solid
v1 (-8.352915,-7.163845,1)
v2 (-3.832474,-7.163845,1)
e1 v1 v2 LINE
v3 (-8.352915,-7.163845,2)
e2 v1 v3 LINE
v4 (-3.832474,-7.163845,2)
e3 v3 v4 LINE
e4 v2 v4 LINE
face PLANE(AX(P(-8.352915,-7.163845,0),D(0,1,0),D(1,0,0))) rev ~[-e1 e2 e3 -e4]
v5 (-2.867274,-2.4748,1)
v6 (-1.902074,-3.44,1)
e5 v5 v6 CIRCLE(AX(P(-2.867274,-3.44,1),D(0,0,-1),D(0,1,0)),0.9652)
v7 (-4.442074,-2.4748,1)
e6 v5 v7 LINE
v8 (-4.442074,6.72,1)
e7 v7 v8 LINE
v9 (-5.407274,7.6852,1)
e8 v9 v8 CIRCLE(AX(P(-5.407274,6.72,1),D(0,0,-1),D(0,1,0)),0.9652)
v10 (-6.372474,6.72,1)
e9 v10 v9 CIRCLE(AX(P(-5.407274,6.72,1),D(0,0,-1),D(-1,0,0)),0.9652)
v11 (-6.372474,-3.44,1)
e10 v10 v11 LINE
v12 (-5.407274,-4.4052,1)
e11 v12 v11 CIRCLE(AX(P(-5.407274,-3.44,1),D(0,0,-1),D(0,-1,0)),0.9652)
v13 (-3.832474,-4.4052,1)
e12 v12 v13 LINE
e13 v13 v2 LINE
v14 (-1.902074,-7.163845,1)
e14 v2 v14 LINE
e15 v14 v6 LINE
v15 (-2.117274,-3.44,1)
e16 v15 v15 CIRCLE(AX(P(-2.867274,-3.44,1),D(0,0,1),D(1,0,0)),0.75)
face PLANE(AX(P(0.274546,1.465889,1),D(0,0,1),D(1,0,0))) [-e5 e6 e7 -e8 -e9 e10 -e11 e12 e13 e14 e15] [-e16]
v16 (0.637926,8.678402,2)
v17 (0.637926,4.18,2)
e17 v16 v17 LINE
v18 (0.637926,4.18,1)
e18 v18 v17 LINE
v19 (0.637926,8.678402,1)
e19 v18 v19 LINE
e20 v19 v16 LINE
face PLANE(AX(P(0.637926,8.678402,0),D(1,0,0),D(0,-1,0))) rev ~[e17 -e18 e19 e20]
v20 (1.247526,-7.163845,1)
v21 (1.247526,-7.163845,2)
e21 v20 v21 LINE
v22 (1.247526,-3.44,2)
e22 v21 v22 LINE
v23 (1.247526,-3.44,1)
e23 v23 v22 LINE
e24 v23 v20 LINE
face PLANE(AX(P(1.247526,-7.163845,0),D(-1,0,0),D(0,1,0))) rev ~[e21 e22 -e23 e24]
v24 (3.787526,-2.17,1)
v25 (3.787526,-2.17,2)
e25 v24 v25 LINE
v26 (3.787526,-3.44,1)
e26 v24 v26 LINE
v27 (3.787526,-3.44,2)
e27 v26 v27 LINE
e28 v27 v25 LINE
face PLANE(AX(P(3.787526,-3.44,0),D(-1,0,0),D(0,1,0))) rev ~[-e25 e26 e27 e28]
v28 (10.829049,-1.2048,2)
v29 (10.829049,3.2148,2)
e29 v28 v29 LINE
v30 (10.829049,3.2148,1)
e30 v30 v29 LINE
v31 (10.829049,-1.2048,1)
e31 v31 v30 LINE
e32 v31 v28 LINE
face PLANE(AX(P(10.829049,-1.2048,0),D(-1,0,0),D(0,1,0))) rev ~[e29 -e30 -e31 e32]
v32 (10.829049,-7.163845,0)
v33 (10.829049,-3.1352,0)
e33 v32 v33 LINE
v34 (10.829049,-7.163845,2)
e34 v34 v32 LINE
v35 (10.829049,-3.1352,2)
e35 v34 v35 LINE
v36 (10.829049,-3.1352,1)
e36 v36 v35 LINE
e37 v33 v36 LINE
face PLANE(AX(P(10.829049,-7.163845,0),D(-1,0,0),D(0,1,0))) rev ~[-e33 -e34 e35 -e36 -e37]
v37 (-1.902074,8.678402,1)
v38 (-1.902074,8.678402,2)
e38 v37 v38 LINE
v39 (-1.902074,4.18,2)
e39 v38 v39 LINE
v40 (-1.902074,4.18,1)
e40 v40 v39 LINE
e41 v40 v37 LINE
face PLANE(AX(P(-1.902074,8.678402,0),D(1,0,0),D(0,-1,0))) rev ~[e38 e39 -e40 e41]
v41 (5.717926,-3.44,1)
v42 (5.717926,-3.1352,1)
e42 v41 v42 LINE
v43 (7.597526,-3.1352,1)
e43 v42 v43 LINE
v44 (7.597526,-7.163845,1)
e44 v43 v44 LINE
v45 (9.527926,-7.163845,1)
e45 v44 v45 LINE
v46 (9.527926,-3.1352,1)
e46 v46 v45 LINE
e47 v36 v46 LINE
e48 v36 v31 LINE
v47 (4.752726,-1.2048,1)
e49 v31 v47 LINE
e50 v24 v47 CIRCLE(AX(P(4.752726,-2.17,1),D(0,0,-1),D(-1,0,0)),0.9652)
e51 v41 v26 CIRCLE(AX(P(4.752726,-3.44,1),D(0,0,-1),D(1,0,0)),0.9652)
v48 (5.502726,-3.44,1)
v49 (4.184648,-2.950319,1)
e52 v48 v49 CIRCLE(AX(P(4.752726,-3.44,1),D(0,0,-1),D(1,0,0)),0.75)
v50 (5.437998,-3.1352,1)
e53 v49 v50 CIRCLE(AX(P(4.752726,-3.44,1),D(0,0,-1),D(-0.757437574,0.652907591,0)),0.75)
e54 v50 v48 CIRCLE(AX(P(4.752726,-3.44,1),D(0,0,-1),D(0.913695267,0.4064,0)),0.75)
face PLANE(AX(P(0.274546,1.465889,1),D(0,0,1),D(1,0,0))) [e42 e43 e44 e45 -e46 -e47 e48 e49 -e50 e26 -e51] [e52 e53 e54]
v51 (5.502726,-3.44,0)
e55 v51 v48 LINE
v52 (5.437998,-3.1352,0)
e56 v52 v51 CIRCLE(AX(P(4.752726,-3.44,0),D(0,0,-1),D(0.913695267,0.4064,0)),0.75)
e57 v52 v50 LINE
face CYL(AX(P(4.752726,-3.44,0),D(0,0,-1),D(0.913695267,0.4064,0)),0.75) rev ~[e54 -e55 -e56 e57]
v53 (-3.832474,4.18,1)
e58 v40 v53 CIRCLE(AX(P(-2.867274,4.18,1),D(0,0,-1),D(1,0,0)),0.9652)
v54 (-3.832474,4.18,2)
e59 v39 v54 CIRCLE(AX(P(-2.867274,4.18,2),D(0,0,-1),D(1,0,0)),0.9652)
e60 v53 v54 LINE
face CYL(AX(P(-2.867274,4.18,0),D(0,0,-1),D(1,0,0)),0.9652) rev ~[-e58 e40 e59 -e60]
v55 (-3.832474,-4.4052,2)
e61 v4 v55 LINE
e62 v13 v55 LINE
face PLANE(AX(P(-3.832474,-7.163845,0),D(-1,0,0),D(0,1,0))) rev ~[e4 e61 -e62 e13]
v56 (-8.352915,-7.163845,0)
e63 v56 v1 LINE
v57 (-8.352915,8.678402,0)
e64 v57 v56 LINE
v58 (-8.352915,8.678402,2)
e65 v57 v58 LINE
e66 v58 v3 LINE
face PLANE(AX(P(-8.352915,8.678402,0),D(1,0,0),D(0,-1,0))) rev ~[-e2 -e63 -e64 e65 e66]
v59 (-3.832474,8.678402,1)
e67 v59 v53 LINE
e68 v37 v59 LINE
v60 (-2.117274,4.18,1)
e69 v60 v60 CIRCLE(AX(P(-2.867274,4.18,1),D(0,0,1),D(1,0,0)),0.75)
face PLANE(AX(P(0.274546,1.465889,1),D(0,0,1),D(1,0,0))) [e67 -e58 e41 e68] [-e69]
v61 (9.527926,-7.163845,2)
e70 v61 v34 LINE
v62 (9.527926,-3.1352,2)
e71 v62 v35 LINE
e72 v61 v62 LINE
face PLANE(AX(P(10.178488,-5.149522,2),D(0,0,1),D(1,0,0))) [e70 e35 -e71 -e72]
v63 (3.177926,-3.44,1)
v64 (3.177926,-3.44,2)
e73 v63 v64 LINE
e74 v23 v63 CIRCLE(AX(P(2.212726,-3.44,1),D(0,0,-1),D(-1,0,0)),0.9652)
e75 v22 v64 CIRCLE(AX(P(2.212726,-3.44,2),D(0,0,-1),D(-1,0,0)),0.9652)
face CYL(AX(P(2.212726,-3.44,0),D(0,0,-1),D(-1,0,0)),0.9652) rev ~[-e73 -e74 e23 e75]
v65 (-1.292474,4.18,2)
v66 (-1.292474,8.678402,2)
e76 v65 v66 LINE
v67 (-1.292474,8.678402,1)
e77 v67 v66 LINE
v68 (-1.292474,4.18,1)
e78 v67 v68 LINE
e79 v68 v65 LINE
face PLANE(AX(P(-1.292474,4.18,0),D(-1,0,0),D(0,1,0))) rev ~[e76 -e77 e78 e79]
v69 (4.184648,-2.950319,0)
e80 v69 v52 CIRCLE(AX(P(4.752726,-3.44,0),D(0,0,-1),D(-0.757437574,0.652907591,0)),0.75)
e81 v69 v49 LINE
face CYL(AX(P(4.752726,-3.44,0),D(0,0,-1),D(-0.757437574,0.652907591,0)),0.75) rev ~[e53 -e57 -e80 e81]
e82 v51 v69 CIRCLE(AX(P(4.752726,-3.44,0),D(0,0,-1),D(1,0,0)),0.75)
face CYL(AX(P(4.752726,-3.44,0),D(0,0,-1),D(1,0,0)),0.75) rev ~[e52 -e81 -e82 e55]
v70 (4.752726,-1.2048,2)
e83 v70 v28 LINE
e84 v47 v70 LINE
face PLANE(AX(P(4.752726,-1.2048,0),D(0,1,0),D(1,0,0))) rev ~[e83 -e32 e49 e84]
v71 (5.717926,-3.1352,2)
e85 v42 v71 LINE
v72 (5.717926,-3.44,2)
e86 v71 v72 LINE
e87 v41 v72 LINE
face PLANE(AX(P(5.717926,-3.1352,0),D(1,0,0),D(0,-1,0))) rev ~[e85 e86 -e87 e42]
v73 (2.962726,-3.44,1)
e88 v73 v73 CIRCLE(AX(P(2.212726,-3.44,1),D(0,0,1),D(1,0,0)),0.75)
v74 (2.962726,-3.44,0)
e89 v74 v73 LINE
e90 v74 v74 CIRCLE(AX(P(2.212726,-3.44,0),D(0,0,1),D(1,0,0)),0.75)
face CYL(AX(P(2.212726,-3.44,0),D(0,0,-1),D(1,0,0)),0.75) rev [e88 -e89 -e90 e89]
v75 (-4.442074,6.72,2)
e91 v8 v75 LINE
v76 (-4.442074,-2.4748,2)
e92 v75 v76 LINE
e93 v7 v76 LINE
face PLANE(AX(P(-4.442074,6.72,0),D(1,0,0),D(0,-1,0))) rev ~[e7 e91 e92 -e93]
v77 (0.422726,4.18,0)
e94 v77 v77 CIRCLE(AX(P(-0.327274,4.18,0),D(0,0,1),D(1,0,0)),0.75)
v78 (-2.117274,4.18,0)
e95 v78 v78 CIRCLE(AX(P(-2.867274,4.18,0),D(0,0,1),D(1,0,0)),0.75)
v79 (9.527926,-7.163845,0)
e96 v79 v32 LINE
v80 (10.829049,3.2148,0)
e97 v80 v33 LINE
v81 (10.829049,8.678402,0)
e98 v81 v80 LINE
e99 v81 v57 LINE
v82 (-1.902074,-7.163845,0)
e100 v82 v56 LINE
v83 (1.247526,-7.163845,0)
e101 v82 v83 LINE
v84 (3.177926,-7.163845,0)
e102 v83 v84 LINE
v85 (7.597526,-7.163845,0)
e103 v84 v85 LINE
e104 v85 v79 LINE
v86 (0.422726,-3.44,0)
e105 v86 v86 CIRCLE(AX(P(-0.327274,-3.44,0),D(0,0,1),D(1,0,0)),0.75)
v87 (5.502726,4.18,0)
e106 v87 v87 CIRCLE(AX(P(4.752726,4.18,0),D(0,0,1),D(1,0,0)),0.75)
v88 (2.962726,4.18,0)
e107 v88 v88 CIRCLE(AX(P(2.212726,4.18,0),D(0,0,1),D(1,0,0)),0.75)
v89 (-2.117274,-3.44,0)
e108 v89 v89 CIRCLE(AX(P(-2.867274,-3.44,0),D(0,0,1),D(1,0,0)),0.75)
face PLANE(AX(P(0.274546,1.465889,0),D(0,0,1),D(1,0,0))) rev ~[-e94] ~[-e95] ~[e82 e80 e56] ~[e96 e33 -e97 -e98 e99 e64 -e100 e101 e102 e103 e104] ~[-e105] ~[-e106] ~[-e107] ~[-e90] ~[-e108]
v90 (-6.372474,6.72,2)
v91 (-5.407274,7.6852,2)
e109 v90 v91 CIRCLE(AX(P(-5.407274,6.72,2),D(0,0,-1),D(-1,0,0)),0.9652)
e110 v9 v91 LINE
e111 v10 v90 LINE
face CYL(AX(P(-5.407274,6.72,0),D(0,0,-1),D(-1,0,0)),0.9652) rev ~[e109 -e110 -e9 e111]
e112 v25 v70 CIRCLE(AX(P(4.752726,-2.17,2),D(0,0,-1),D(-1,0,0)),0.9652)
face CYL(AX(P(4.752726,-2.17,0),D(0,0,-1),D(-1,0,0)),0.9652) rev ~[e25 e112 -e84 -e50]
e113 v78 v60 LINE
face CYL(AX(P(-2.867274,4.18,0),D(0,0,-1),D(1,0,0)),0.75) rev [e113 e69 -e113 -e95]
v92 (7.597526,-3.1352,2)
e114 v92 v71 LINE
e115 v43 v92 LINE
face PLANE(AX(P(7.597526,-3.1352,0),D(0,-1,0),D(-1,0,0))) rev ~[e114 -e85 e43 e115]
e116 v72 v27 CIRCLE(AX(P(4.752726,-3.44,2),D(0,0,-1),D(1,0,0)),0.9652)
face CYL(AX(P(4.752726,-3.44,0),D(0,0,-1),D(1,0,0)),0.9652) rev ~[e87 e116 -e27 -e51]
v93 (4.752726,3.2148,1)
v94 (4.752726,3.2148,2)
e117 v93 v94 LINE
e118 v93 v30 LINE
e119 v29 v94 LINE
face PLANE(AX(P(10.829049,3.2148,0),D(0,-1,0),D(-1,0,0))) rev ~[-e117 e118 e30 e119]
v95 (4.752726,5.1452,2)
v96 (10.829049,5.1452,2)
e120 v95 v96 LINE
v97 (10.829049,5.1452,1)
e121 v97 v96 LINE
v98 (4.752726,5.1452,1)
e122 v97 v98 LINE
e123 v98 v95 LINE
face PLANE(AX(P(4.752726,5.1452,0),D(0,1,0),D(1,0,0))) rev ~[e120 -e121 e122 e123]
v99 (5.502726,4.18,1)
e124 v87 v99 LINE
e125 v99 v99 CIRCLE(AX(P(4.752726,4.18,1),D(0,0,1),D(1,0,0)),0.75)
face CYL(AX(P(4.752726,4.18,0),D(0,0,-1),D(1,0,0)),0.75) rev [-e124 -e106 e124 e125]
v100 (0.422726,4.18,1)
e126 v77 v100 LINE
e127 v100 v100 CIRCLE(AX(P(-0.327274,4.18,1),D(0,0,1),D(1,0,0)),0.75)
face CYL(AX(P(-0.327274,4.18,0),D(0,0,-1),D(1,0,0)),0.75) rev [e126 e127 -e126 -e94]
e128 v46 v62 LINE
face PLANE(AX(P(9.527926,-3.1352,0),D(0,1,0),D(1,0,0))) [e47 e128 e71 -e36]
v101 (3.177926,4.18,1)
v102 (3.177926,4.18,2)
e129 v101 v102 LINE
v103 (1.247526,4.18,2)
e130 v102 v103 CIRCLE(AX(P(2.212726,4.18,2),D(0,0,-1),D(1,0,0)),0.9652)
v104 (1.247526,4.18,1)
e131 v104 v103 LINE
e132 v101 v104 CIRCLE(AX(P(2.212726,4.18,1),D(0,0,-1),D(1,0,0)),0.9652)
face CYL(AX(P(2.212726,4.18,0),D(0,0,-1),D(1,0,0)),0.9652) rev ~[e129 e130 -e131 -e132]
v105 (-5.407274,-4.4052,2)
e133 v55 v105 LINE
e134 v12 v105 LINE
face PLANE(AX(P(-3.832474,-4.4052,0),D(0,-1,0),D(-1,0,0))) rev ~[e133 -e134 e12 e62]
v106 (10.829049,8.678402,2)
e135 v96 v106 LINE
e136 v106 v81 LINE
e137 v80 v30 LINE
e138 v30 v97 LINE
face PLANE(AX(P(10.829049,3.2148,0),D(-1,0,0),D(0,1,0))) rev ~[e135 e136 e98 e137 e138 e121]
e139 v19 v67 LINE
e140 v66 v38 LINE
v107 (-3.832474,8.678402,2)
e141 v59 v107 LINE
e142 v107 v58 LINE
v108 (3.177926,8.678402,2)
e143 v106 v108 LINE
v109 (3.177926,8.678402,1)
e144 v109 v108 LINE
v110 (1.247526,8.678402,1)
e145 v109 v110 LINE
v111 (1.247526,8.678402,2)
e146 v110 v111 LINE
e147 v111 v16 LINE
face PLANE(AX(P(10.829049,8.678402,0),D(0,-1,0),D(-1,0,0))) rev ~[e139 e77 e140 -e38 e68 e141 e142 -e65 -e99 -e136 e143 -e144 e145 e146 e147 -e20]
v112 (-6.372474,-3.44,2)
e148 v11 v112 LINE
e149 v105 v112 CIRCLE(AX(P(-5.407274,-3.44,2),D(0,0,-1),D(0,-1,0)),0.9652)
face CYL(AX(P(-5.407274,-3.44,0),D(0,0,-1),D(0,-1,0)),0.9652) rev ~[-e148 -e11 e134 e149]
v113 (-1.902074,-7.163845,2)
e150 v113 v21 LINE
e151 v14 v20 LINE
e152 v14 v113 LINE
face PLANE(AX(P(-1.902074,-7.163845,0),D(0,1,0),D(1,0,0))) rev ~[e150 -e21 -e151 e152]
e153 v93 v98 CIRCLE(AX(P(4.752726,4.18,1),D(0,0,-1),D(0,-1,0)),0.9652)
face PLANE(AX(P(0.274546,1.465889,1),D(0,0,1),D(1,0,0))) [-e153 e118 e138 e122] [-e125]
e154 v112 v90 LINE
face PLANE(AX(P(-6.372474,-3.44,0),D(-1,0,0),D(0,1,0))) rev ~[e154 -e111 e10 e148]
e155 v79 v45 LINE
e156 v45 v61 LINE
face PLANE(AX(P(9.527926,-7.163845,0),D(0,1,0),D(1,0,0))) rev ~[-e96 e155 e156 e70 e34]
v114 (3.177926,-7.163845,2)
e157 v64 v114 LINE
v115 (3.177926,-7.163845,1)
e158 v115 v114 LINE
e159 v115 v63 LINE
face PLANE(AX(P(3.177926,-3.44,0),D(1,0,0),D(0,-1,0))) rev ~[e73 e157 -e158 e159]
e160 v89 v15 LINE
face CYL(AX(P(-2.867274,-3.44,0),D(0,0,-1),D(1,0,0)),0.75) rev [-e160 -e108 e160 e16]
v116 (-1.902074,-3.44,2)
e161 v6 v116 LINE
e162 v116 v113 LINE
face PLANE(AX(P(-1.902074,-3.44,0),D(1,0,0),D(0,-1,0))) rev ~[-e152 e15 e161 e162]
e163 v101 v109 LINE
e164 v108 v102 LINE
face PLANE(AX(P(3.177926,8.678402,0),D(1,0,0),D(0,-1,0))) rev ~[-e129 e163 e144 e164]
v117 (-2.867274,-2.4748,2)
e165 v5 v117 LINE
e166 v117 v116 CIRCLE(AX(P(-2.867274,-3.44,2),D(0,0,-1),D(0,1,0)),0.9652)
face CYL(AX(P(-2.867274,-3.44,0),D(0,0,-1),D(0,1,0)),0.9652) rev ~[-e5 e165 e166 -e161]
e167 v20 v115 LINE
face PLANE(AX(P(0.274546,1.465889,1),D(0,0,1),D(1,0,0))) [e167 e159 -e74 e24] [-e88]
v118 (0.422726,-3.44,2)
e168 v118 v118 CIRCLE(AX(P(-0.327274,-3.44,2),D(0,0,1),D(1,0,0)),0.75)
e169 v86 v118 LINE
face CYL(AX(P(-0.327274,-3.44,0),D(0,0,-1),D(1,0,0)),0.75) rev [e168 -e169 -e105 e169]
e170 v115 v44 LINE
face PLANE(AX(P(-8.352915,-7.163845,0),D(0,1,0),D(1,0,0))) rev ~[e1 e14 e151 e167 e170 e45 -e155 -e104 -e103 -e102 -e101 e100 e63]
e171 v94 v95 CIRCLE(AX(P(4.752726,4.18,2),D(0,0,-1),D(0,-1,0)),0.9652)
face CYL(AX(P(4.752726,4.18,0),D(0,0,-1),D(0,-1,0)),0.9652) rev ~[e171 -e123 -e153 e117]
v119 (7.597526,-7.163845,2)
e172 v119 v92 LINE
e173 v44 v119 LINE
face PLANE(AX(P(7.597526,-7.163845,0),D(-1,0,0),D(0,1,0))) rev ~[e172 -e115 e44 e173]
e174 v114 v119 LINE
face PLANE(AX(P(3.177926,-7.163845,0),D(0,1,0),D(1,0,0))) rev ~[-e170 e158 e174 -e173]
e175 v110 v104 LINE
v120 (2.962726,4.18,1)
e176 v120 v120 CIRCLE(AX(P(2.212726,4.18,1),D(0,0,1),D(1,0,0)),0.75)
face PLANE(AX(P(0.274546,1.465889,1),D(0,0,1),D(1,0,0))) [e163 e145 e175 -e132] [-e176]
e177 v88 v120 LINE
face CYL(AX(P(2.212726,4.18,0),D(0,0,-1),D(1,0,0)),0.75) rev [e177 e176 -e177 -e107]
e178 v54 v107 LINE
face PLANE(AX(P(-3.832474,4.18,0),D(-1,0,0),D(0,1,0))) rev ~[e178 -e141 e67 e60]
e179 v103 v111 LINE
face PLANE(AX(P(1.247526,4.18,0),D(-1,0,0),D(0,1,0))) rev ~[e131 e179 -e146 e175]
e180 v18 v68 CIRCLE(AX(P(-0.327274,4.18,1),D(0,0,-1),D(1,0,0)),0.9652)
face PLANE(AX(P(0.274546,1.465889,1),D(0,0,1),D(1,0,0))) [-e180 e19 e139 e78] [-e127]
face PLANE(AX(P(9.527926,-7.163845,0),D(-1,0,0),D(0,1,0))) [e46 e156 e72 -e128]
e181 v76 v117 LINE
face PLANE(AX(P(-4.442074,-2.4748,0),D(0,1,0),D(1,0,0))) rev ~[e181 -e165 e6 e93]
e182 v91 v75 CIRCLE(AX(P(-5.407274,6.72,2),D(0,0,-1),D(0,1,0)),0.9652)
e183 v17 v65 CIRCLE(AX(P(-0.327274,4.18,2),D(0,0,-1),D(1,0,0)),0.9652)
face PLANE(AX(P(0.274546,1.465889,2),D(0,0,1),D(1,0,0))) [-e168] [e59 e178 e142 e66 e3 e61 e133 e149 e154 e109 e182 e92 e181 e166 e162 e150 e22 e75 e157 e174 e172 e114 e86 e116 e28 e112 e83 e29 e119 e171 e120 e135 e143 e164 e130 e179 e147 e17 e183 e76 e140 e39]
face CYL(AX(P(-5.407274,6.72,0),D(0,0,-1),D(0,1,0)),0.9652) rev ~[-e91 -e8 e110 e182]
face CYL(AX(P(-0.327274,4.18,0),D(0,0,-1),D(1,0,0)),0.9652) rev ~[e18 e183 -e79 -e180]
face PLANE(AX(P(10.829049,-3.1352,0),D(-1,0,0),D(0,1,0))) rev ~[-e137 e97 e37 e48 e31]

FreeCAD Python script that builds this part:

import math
import FreeCAD as App
import Part
import Sketcher

V = App.Vector
Q = App.Units.Quantity

doc = App.newDocument("Part")
body = doc.addObject("PartDesign::Body", "Body")

# Sketch on XY plane
sketch1 = doc.addObject("Sketcher::SketchObject", "Sketch")
body.addObject(sketch1)
sketch1.AttachmentSupport = (doc.XY_Plane, [""])
sketch1.MapMode = "FlatFace"
sketch1.addGeometry(Part.LineSegment(V(10.83, 8.68, 0), V(-8.35, 8.68, 0)), False)
sketch1.addGeometry(Part.LineSegment(V(-8.35, 8.68, 0), V(-8.35, -7.16, 0)), False)
sketch1.addGeometry(Part.LineSegment(V(-8.35, -7.16, 0), V(9.53, -7.16, 0)), False)
sketch1.addGeometry(Part.LineSegment(V(9.53, -7.16, 0), V(10.83, -7.16, 0)), False)
sketch1.addGeometry(Part.LineSegment(V(10.83, -7.16, 0), V(10.83, -3.14, 0)), False)
sketch1.addGeometry(Part.LineSegment(V(10.83, -3.14, 0), V(10.83, 3.21, 0)), False)
sketch1.addGeometry(Part.LineSegment(V(10.83, 3.21, 0), V(10.83, 8.68, 0)), False)
sketch1.addGeometry(Part.Circle(V(-2.87, -3.44, 0), V(0, 0, 1), 0.75), False)
sketch1.addGeometry(Part.Circle(V(-0.33, -3.44, 0), V(0, 0, 1), 0.75), False)
sketch1.addGeometry(Part.Circle(V(2.21, -3.44, 0), V(0, 0, 1), 0.75), False)
sketch1.addGeometry(Part.ArcOfCircle(Part.Circle(V(4.75, -3.44, 0), V(0, 0, 1), 0.75), math.radians(24), math.radians(139)), False)
sketch1.addGeometry(Part.ArcOfCircle(Part.Circle(V(4.75, -3.44, 0), V(0, 0, 1), 0.75), math.radians(0), math.radians(24)), False)
sketch1.addGeometry(Part.ArcOfCircle(Part.Circle(V(4.75, -3.44, 0), V(0, 0, 1), 0.75), math.radians(139), math.radians(360)), False)
sketch1.addGeometry(Part.Circle(V(-2.87, 4.18, 0), V(0, 0, 1), 0.75), False)
sketch1.addGeometry(Part.Circle(V(-0.33, 4.18, 0), V(0, 0, 1), 0.75), False)
sketch1.addGeometry(Part.Circle(V(2.21, 4.18, 0), V(0, 0, 1), 0.75), False)
sketch1.addGeometry(Part.Circle(V(4.75, 4.18, 0), V(0, 0, 1), 0.75), False)
sketch1.addConstraint(Sketcher.Constraint("Coincident", 0, 2, 1, 1))
sketch1.addConstraint(Sketcher.Constraint("Coincident", 1, 2, 2, 1))
sketch1.addConstraint(Sketcher.Constraint("Coincident", 2, 2, 3, 1))
sketch1.addConstraint(Sketcher.Constraint("Coincident", 3, 2, 4, 1))
sketch1.addConstraint(Sketcher.Constraint("Coincident", 4, 2, 5, 1))
sketch1.addConstraint(Sketcher.Constraint("Coincident", 5, 2, 6, 1))
sketch1.addConstraint(Sketcher.Constraint("Coincident", 6, 2, 0, 1))
sketch1.addConstraint(Sketcher.Constraint("Tangent", 10, 1, 11, 2))
sketch1.addConstraint(Sketcher.Constraint("Tangent", 11, 1, 12, 2))
sketch1.addConstraint(Sketcher.Constraint("Tangent", 12, 1, 10, 2))
sketch1.addConstraint(Sketcher.Constraint("Horizontal", 0))
sketch1.addConstraint(Sketcher.Constraint("Vertical", 1))
sketch1.addConstraint(Sketcher.Constraint("Horizontal", 2))
sketch1.addConstraint(Sketcher.Constraint("Horizontal", 3))
sketch1.addConstraint(Sketcher.Constraint("Vertical", 4))
sketch1.addConstraint(Sketcher.Constraint("Vertical", 5))
sketch1.addConstraint(Sketcher.Constraint("Vertical", 6))
sketch1.addConstraint(Sketcher.Constraint("Equal", 7, 8))
sketch1.addConstraint(Sketcher.Constraint("Equal", 8, 9))
sketch1.addConstraint(Sketcher.Constraint("Equal", 9, 10))
sketch1.addConstraint(Sketcher.Constraint("Equal", 12, 13))
sketch1.addConstraint(Sketcher.Constraint("Equal", 13, 14))
sketch1.addConstraint(Sketcher.Constraint("Equal", 14, 15))
sketch1.addConstraint(Sketcher.Constraint("Equal", 15, 16))
sketch1.addConstraint(Sketcher.Constraint("Horizontal", 7, 3, 8, 3))
sketch1.addConstraint(Sketcher.Constraint("Horizontal", 8, 3, 9, 3))
sketch1.addConstraint(Sketcher.Constraint("Horizontal", 9, 3, 10, 3))
sketch1.addConstraint(Sketcher.Constraint("Horizontal", 13, 3, 14, 3))
sketch1.addConstraint(Sketcher.Constraint("Horizontal", 14, 3, 15, 3))
sketch1.addConstraint(Sketcher.Constraint("Horizontal", 15, 3, 16, 3))
sketch1.addConstraint(Sketcher.Constraint("Horizontal", 4, 2, 10, 1))
sketch1.addConstraint(Sketcher.Constraint("Horizontal", 12, 3, 11, 1))
sketch1.addConstraint(Sketcher.Constraint("Vertical", 7, 3, 13, 3))
sketch1.addConstraint(Sketcher.Constraint("Vertical", 8, 3, 14, 3))
sketch1.addConstraint(Sketcher.Constraint("Vertical", 9, 3, 15, 3))
sketch1.addConstraint(Sketcher.Constraint("Vertical", 12, 3, 16, 3))
sketch1.addConstraint(Sketcher.Constraint("DistanceY", 5, 1, 5, 2, Q("0.25 in")))
sketch1.addConstraint(Sketcher.Constraint("DistanceX", 7, 3, 8, 3, Q("0.1 in")))
sketch1.addConstraint(Sketcher.Constraint("DistanceX", 8, 3, 9, 3, Q("0.1 in")))
sketch1.addConstraint(Sketcher.Constraint("DistanceX", 9, 3, 10, 3, Q("0.1 in")))
sketch1.addConstraint(Sketcher.Constraint("DistanceY", 7, 3, 13, 3, Q("0.3 in")))
sketch1.addConstraint(Sketcher.Constraint("Diameter", 7, Q("1.5 mm")))
sketch1.addConstraint(Sketcher.Constraint("DistanceX", 10, 3, 2, 2, Q("0.188 in")))
sketch1.addConstraint(Sketcher.Constraint("DistanceY", 10, 3, 4, 2, Q("0.012 in")))
sketch1.addConstraint(Sketcher.Constraint("DistanceX", 2, 1, 2, 2, Q("17.880841 mm")))
sketch1.addConstraint(Sketcher.Constraint("DistanceY", 7, 3, -1, 1, Q("3.44 mm")))
sketch1.addConstraint(Sketcher.Constraint("DistanceY", -1, 1, 0, 2, Q("8.678402 mm")))
sketch1.addConstraint(Sketcher.Constraint("DistanceX", 0, 2, 0, 1, Q("19.181964 mm")))
sketch1.addConstraint(Sketcher.Constraint("DistanceY", 1, 2, 1, 1, Q("15.842246 mm")))
sketch1.addConstraint(Sketcher.Constraint("DistanceX", -1, 1, 3, 2, Q("10.829049 mm")))
sketch1.addConstraint(Sketcher.Constraint("DistanceY", 12, 1, -1, 1, Q("2.950319 mm")))
pad1 = doc.addObject("PartDesign::Pad", "Pad")
body.addObject(pad1)
pad1.Profile = sketch1
pad1.Length = 1

# Sketch on XY plane
sketch2 = doc.addObject("Sketcher::SketchObject", "Sketch001")
body.addObject(sketch2)
sketch2.AttachmentSupport = (doc.XY_Plane, [""])
sketch2.MapMode = "FlatFace"
sketch2.addGeometry(Part.LineSegment(V(-3.83, 4.18, 0), V(-3.83, 8.68, 0)), False)
sketch2.addGeometry(Part.LineSegment(V(-3.83, 8.68, 0), V(-8.35, 8.68, 0)), False)
sketch2.addGeometry(Part.LineSegment(V(-8.35, 8.68, 0), V(-8.35, -7.16, 0)), False)
sketch2.addGeometry(Part.LineSegment(V(-8.35, -7.16, 0), V(-3.83, -7.16, 0)), False)
sketch2.addGeometry(Part.LineSegment(V(-3.83, -7.16, 0), V(-3.83, -4.41, 0)), False)
sketch2.addGeometry(Part.LineSegment(V(-3.83, -4.41, 0), V(-5.41, -4.41, 0)), False)
sketch2.addGeometry(Part.ArcOfCircle(Part.Circle(V(-5.41, -3.44, 0), V(0, 0, 1), 0.97), math.radians(180), math.radians(270)), False)
sketch2.addGeometry(Part.LineSegment(V(-6.37, -3.44, 0), V(-6.37, 6.72, 0)), False)
sketch2.addGeometry(Part.ArcOfCircle(Part.Circle(V(-5.41, 6.72, 0), V(0, 0, 1), 0.97), math.radians(90), math.radians(180)), False)
sketch2.addGeometry(Part.ArcOfCircle(Part.Circle(V(-5.41, 6.72, 0), V(0, 0, 1), 0.97), math.radians(0), math.radians(90)), False)
sketch2.addGeometry(Part.LineSegment(V(-4.44, 6.72, 0), V(-4.44, -2.47, 0)), False)
sketch2.addGeometry(Part.LineSegment(V(-4.44, -2.47, 0), V(-2.87, -2.47, 0)), False)
sketch2.addGeometry(Part.ArcOfCircle(Part.Circle(V(-2.87, -3.44, 0), V(0, 0, 1), 0.97), math.radians(0), math.radians(90)), False)
sketch2.addGeometry(Part.LineSegment(V(-1.9, -3.44, 0), V(-1.9, -7.16, 0)), False)
sketch2.addGeometry(Part.LineSegment(V(-1.9, -7.16, 0), V(1.25, -7.16, 0)), False)
sketch2.addGeometry(Part.LineSegment(V(1.25, -7.16, 0), V(1.25, -3.44, 0)), False)
sketch2.addGeometry(Part.ArcOfCircle(Part.Circle(V(2.21, -3.44, 0), V(0, 0, 1), 0.97), math.radians(0), math.radians(180)), False)
sketch2.addGeometry(Part.LineSegment(V(3.18, -3.44, 0), V(3.18, -7.16, 0)), False)
sketch2.addGeometry(Part.LineSegment(V(3.18, -7.16, 0), V(7.6, -7.16, 0)), False)
sketch2.addGeometry(Part.LineSegment(V(7.6, -7.16, 0), V(7.6, -3.14, 0)), False)
sketch2.addGeometry(Part.LineSegment(V(7.6, -3.14, 0), V(5.72, -3.14, 0)), False)
sketch2.addGeometry(Part.LineSegment(V(5.72, -3.14, 0), V(5.72, -3.44, 0)), False)
sketch2.addGeometry(Part.ArcOfCircle(Part.Circle(V(4.75, -3.44, 0), V(0, 0, 1), 0.97), math.radians(180), math.radians(360)), False)
sketch2.addGeometry(Part.LineSegment(V(3.79, -3.44, 0), V(3.79, -2.17, 0)), False)
sketch2.addGeometry(Part.ArcOfCircle(Part.Circle(V(4.75, -2.17, 0), V(0, 0, 1), 0.97), math.radians(90), math.radians(180)), False)
sketch2.addGeometry(Part.LineSegment(V(4.75, -1.2, 0), V(10.83, -1.2, 0)), False)
sketch2.addGeometry(Part.LineSegment(V(10.83, -1.2, 0), V(10.83, 3.21, 0)), False)
sketch2.addGeometry(Part.LineSegment(V(10.83, 3.21, 0), V(4.75, 3.21, 0)), False)
sketch2.addGeometry(Part.ArcOfCircle(Part.Circle(V(4.75, 4.18, 0), V(0, 0, 1), 0.97), math.radians(90), math.radians(270)), False)
sketch2.addGeometry(Part.LineSegment(V(4.75, 5.15, 0), V(10.83, 5.15, 0)), False)
sketch2.addGeometry(Part.LineSegment(V(10.83, 5.15, 0), V(10.83, 8.68, 0)), False)
sketch2.addGeometry(Part.LineSegment(V(10.83, 8.68, 0), V(3.18, 8.68, 0)), False)
sketch2.addGeometry(Part.LineSegment(V(3.18, 8.68, 0), V(3.18, 4.18, 0)), False)
sketch2.addGeometry(Part.ArcOfCircle(Part.Circle(V(2.21, 4.18, 0), V(0, 0, 1), 0.97), math.radians(180), math.radians(360)), False)
sketch2.addGeometry(Part.LineSegment(V(1.25, 4.18, 0), V(1.25, 8.68, 0)), False)
sketch2.addGeometry(Part.LineSegment(V(1.25, 8.68, 0), V(0.64, 8.68, 0)), False)
sketch2.addGeometry(Part.LineSegment(V(0.64, 8.68, 0), V(0.64, 4.18, 0)), False)
sketch2.addGeometry(Part.ArcOfCircle(Part.Circle(V(-0.33, 4.18, 0), V(0, 0, 1), 0.97), math.radians(180), math.radians(360)), False)
sketch2.addGeometry(Part.LineSegment(V(-1.29, 4.18, 0), V(-1.29, 8.68, 0)), False)
sketch2.addGeometry(Part.LineSegment(V(-1.29, 8.68, 0), V(-1.9, 8.68, 0)), False)
sketch2.addGeometry(Part.LineSegment(V(-1.9, 8.68, 0), V(-1.9, 4.18, 0)), False)
sketch2.addGeometry(Part.ArcOfCircle(Part.Circle(V(-2.87, 4.18, 0), V(0, 0, 1), 0.97), math.radians(180), math.radians(360)), False)
sketch2.addGeometry(Part.Circle(V(-0.33, -3.44, 0), V(0, 0, 1), 0.75), False)
sketch2.addGeometry(Part.LineSegment(V(9.53, -3.14, 0), V(9.53, -7.16, 0)), False)
sketch2.addGeometry(Part.LineSegment(V(9.53, -7.16, 0), V(10.83, -7.16, 0)), False)
sketch2.addGeometry(Part.LineSegment(V(10.83, -7.16, 0), V(10.83, -3.14, 0)), False)
sketch2.addGeometry(Part.LineSegment(V(10.83, -3.14, 0), V(9.53, -3.14, 0)), False)
sketch2.addConstraint(Sketcher.Constraint("Coincident", 0, 2, 1, 1))
sketch2.addConstraint(Sketcher.Constraint("Coincident", 1, 2, 2, 1))
sketch2.addConstraint(Sketcher.Constraint("Coincident", 2, 2, 3, 1))
sketch2.addConstraint(Sketcher.Constraint("Coincident", 3, 2, 4, 1))
sketch2.addConstraint(Sketcher.Constraint("Coincident", 4, 2, 5, 1))
sketch2.addConstraint(Sketcher.Constraint("Tangent", 5, 2, 6, 2))
sketch2.addConstraint(Sketcher.Constraint("Tangent", 6, 1, 7, 1))
sketch2.addConstraint(Sketcher.Constraint("Tangent", 7, 2, 8, 2))
sketch2.addConstraint(Sketcher.Constraint("Tangent", 8, 1, 9, 2))
sketch2.addConstraint(Sketcher.Constraint("Tangent", 9, 1, 10, 1))
sketch2.addConstraint(Sketcher.Constraint("Coincident", 10, 2, 11, 1))
sketch2.addConstraint(Sketcher.Constraint("Tangent", 11, 2, 12, 2))
sketch2.addConstraint(Sketcher.Constraint("Tangent", 12, 1, 13, 1))
sketch2.addConstraint(Sketcher.Constraint("Coincident", 13, 2, 14, 1))
sketch2.addConstraint(Sketcher.Constraint("Coincident", 14, 2, 15, 1))
sketch2.addConstraint(Sketcher.Constraint("Tangent", 15, 2, 16, 2))
sketch2.addConstraint(Sketcher.Constraint("Tangent", 16, 1, 17, 1))
sketch2.addConstraint(Sketcher.Constraint("Coincident", 17, 2, 18, 1))
sketch2.addConstraint(Sketcher.Constraint("Coincident", 18, 2, 19, 1))
sketch2.addConstraint(Sketcher.Constraint("Coincident", 19, 2, 20, 1))
sketch2.addConstraint(Sketcher.Constraint("Coincident", 20, 2, 21, 1))
sketch2.addConstraint(Sketcher.Constraint("Tangent", 21, 2, 22, 2))
sketch2.addConstraint(Sketcher.Constraint("Tangent", 22, 1, 23, 1))
sketch2.addConstraint(Sketcher.Constraint("Tangent", 23, 2, 24, 2))
sketch2.addConstraint(Sketcher.Constraint("Tangent", 24, 1, 25, 1))
sketch2.addConstraint(Sketcher.Constraint("Coincident", 25, 2, 26, 1))
sketch2.addConstraint(Sketcher.Constraint("Coincident", 26, 2, 27, 1))
sketch2.addConstraint(Sketcher.Constraint("Tangent", 27, 2, 28, 2))
sketch2.addConstraint(Sketcher.Constraint("Tangent", 28, 1, 29, 1))
sketch2.addConstraint(Sketcher.Constraint("Coincident", 29, 2, 30, 1))
sketch2.addConstraint(Sketcher.Constraint("Coincident", 30, 2, 31, 1))
sketch2.addConstraint(Sketcher.Constraint("Coincident", 31, 2, 32, 1))
sketch2.addConstraint(Sketcher.Constraint("Tangent", 32, 2, 33, 2))
sketch2.addConstraint(Sketcher.Constraint("Tangent", 33, 1, 34, 1))
sketch2.addConstraint(Sketcher.Constraint("Coincident", 34, 2, 35, 1))
sketch2.addConstraint(Sketcher.Constraint("Coincident", 35, 2, 36, 1))
sketch2.addConstraint(Sketcher.Constraint("Tangent", 36, 2, 37, 2))
sketch2.addConstraint(Sketcher.Constraint("Tangent", 37, 1, 38, 1))
sketch2.addConstraint(Sketcher.Constraint("Coincident", 38, 2, 39, 1))
sketch2.addConstraint(Sketcher.Constraint("Coincident", 39, 2, 40, 1))
sketch2.addConstraint(Sketcher.Constraint("Tangent", 40, 2, 41, 2))
sketch2.addConstraint(Sketcher.Constraint("Tangent", 41, 1, 0, 1))
sketch2.addConstraint(Sketcher.Constraint("Coincident", 43, 2, 44, 1))
sketch2.addConstraint(Sketcher.Constraint("Coincident", 44, 2, 45, 1))
sketch2.addConstraint(Sketcher.Constraint("Coincident", 45, 2, 46, 1))
sketch2.addConstraint(Sketcher.Constraint("Coincident", 46, 2, 43, 1))
sketch2.addConstraint(Sketcher.Constraint("Vertical", 0))
sketch2.addConstraint(Sketcher.Constraint("Horizontal", 1))
sketch2.addConstraint(Sketcher.Constraint("Vertical", 2))
sketch2.addConstraint(Sketcher.Constraint("Horizontal", 3))
sketch2.addConstraint(Sketcher.Constraint("Vertical", 4))
sketch2.addConstraint(Sketcher.Constraint("Horizontal", 5))
sketch2.addConstraint(Sketcher.Constraint("Vertical", 7))
sketch2.addConstraint(Sketcher.Constraint("Vertical", 10))
sketch2.addConstraint(Sketcher.Constraint("Horizontal", 11))
sketch2.addConstraint(Sketcher.Constraint("Vertical", 13))
sketch2.addConstraint(Sketcher.Constraint("Horizontal", 14))
sketch2.addConstraint(Sketcher.Constraint("Vertical", 15))
sketch2.addConstraint(Sketcher.Constraint("Vertical", 17))
sketch2.addConstraint(Sketcher.Constraint("Horizontal", 18))
sketch2.addConstraint(Sketcher.Constraint("Vertical", 19))
sketch2.addConstraint(Sketcher.Constraint("Horizontal", 20))
sketch2.addConstraint(Sketcher.Constraint("Vertical", 21))
sketch2.addConstraint(Sketcher.Constraint("Vertical", 23))
sketch2.addConstraint(Sketcher.Constraint("Horizontal", 25))
sketch2.addConstraint(Sketcher.Constraint("Vertical", 26))
sketch2.addConstraint(Sketcher.Constraint("Horizontal", 27))
sketch2.addConstraint(Sketcher.Constraint("Horizontal", 29))
sketch2.addConstraint(Sketcher.Constraint("Vertical", 30))
sketch2.addConstraint(Sketcher.Constraint("Horizontal", 31))
sketch2.addConstraint(Sketcher.Constraint("Vertical", 32))
sketch2.addConstraint(Sketcher.Constraint("Vertical", 34))
sketch2.addConstraint(Sketcher.Constraint("Horizontal", 35))
sketch2.addConstraint(Sketcher.Constraint("Vertical", 36))
sketch2.addConstraint(Sketcher.Constraint("Vertical", 38))
sketch2.addConstraint(Sketcher.Constraint("Horizontal", 39))
sketch2.addConstraint(Sketcher.Constraint("Vertical", 40))
sketch2.addConstraint(Sketcher.Constraint("Vertical", 43))
sketch2.addConstraint(Sketcher.Constraint("Horizontal", 44))
sketch2.addConstraint(Sketcher.Constraint("Vertical", 45))
sketch2.addConstraint(Sketcher.Constraint("Horizontal", 46))
sketch2.addConstraint(Sketcher.Constraint("Equal", 6, 8))
sketch2.addConstraint(Sketcher.Constraint("Equal", 8, 9))
sketch2.addConstraint(Sketcher.Constraint("Equal", 9, 12))
sketch2.addConstraint(Sketcher.Constraint("Equal", 12, 16))
sketch2.addConstraint(Sketcher.Constraint("Equal", 16, 22))
sketch2.addConstraint(Sketcher.Constraint("Equal", 22, 24))
sketch2.addConstraint(Sketcher.Constraint("Equal", 24, 28))
sketch2.addConstraint(Sketcher.Constraint("Equal", 28, 33))
sketch2.addConstraint(Sketcher.Constraint("Equal", 33, 37))
sketch2.addConstraint(Sketcher.Constraint("Equal", 37, 41))
sketch2.addConstraint(Sketcher.Constraint("Horizontal", 6, 3, 12, 3))
sketch2.addConstraint(Sketcher.Constraint("Horizontal", 12, 3, 16, 3))
sketch2.addConstraint(Sketcher.Constraint("Horizontal", 16, 3, 22, 3))
sketch2.addConstraint(Sketcher.Constraint("Horizontal", 28, 3, 33, 3))
sketch2.addConstraint(Sketcher.Constraint("Horizontal", 33, 3, 37, 3))
sketch2.addConstraint(Sketcher.Constraint("Horizontal", 37, 3, 41, 3))
sketch2.addConstraint(Sketcher.Constraint("Horizontal", 22, 3, 42, 3))
sketch2.addConstraint(Sketcher.Constraint("Horizontal", 3, 2, 13, 2))
sketch2.addConstraint(Sketcher.Constraint("Horizontal", 14, 2, 17, 2))
sketch2.addConstraint(Sketcher.Constraint("Horizontal", 1, 2, 30, 2))
sketch2.addConstraint(Sketcher.Constraint("Horizontal", 31, 2, 34, 2))
sketch2.addConstraint(Sketcher.Constraint("Horizontal", 35, 2, 38, 2))
sketch2.addConstraint(Sketcher.Constraint("Horizontal", 18, 2, 43, 2))
sketch2.addConstraint(Sketcher.Constraint("Horizontal", 20, 2, 45, 2))
sketch2.addConstraint(Sketcher.Constraint("Vertical", 24, 3, 28, 3))
sketch2.addConstraint(Sketcher.Constraint("Vertical", 16, 3, 33, 3))
sketch2.addConstraint(Sketcher.Constraint("Vertical", 12, 3, 41, 3))
sketch2.addConstraint(Sketcher.Constraint("Vertical", 37, 3, 42, 3))
sketch2.addConstraint(Sketcher.Constraint("Vertical", 0, 2, 3, 2))
sketch2.addConstraint(Sketcher.Constraint("Vertical", 5, 2, 8, 1))
sketch2.addConstraint(Sketcher.Constraint("Vertical", 26, 2, 29, 2))
sketch2.addConstraint(Sketcher.Constraint("Vertical", 30, 2, 44, 2))
sketch2.addConstraint(Sketcher.Constraint("Equal", 35, 39))
sketch2.addConstraint(Sketcher.Constraint("Equal", 18, 26))
sketch2.addConstraint(Sketcher.Constraint("DistanceY", 7, 1, 7, 2, Q("0.4 in")))
sketch2.addConstraint(Sketcher.Constraint("Radius", 6, Q("0.038 in")))
sketch2.addConstraint(Sketcher.Constraint("DistanceY", 23, 1, 23, 2, Q("0.05 in")))
sketch2.addConstraint(Sketcher.Constraint("DistanceX", 6, 3, 12, 3, Q("0.1 in")))
sketch2.addConstraint(Sketcher.Constraint("DistanceX", 12, 3, 16, 3, Q("0.2 in")))
sketch2.addConstraint(Sketcher.Constraint("DistanceX", 16, 3, 22, 3, Q("0.1 in")))
sketch2.addConstraint(Sketcher.Constraint("DistanceY", 22, 3, 28, 3, Q("0.3 in")))
sketch2.addConstraint(Sketcher.Constraint("Diameter", 42, Q("1.5 mm")))
sketch2.addConstraint(Sketcher.Constraint("DistanceY", 21, 2, 21, 1, Q("0.012 in")))
sketch2.addConstraint(Sketcher.Constraint("DistanceX", 21, 2, 43, 2, Q("0.15 in")))
sketch2.addConstraint(Sketcher.Constraint("DistanceY", 0, 1, 0, 2, Q("4.498402 mm")))
sketch2.addConstraint(Sketcher.Constraint("DistanceX", 1, 2, 1, 1, Q("4.520441 mm")))
sketch2.addConstraint(Sketcher.Constraint("DistanceY", 6, 3, -1, 1, Q("3.44 mm")))
sketch2.addConstraint(Sketcher.Constraint("DistanceX", 25, 1, 25, 2, Q("6.076323 mm")))
sketch2.addConstraint(Sketcher.Constraint("DistanceY", 2, 2, 2, 1, Q("15.842246 mm")))
sketch2.addConstraint(Sketcher.Constraint("DistanceX", -1, 1, 25, 2, Q("10.829049 mm")))
pad2 = doc.addObject("PartDesign::Pad", "Pad001")
body.addObject(pad2)
pad2.Profile = sketch2
pad2.Length = 2

doc.recompute()
